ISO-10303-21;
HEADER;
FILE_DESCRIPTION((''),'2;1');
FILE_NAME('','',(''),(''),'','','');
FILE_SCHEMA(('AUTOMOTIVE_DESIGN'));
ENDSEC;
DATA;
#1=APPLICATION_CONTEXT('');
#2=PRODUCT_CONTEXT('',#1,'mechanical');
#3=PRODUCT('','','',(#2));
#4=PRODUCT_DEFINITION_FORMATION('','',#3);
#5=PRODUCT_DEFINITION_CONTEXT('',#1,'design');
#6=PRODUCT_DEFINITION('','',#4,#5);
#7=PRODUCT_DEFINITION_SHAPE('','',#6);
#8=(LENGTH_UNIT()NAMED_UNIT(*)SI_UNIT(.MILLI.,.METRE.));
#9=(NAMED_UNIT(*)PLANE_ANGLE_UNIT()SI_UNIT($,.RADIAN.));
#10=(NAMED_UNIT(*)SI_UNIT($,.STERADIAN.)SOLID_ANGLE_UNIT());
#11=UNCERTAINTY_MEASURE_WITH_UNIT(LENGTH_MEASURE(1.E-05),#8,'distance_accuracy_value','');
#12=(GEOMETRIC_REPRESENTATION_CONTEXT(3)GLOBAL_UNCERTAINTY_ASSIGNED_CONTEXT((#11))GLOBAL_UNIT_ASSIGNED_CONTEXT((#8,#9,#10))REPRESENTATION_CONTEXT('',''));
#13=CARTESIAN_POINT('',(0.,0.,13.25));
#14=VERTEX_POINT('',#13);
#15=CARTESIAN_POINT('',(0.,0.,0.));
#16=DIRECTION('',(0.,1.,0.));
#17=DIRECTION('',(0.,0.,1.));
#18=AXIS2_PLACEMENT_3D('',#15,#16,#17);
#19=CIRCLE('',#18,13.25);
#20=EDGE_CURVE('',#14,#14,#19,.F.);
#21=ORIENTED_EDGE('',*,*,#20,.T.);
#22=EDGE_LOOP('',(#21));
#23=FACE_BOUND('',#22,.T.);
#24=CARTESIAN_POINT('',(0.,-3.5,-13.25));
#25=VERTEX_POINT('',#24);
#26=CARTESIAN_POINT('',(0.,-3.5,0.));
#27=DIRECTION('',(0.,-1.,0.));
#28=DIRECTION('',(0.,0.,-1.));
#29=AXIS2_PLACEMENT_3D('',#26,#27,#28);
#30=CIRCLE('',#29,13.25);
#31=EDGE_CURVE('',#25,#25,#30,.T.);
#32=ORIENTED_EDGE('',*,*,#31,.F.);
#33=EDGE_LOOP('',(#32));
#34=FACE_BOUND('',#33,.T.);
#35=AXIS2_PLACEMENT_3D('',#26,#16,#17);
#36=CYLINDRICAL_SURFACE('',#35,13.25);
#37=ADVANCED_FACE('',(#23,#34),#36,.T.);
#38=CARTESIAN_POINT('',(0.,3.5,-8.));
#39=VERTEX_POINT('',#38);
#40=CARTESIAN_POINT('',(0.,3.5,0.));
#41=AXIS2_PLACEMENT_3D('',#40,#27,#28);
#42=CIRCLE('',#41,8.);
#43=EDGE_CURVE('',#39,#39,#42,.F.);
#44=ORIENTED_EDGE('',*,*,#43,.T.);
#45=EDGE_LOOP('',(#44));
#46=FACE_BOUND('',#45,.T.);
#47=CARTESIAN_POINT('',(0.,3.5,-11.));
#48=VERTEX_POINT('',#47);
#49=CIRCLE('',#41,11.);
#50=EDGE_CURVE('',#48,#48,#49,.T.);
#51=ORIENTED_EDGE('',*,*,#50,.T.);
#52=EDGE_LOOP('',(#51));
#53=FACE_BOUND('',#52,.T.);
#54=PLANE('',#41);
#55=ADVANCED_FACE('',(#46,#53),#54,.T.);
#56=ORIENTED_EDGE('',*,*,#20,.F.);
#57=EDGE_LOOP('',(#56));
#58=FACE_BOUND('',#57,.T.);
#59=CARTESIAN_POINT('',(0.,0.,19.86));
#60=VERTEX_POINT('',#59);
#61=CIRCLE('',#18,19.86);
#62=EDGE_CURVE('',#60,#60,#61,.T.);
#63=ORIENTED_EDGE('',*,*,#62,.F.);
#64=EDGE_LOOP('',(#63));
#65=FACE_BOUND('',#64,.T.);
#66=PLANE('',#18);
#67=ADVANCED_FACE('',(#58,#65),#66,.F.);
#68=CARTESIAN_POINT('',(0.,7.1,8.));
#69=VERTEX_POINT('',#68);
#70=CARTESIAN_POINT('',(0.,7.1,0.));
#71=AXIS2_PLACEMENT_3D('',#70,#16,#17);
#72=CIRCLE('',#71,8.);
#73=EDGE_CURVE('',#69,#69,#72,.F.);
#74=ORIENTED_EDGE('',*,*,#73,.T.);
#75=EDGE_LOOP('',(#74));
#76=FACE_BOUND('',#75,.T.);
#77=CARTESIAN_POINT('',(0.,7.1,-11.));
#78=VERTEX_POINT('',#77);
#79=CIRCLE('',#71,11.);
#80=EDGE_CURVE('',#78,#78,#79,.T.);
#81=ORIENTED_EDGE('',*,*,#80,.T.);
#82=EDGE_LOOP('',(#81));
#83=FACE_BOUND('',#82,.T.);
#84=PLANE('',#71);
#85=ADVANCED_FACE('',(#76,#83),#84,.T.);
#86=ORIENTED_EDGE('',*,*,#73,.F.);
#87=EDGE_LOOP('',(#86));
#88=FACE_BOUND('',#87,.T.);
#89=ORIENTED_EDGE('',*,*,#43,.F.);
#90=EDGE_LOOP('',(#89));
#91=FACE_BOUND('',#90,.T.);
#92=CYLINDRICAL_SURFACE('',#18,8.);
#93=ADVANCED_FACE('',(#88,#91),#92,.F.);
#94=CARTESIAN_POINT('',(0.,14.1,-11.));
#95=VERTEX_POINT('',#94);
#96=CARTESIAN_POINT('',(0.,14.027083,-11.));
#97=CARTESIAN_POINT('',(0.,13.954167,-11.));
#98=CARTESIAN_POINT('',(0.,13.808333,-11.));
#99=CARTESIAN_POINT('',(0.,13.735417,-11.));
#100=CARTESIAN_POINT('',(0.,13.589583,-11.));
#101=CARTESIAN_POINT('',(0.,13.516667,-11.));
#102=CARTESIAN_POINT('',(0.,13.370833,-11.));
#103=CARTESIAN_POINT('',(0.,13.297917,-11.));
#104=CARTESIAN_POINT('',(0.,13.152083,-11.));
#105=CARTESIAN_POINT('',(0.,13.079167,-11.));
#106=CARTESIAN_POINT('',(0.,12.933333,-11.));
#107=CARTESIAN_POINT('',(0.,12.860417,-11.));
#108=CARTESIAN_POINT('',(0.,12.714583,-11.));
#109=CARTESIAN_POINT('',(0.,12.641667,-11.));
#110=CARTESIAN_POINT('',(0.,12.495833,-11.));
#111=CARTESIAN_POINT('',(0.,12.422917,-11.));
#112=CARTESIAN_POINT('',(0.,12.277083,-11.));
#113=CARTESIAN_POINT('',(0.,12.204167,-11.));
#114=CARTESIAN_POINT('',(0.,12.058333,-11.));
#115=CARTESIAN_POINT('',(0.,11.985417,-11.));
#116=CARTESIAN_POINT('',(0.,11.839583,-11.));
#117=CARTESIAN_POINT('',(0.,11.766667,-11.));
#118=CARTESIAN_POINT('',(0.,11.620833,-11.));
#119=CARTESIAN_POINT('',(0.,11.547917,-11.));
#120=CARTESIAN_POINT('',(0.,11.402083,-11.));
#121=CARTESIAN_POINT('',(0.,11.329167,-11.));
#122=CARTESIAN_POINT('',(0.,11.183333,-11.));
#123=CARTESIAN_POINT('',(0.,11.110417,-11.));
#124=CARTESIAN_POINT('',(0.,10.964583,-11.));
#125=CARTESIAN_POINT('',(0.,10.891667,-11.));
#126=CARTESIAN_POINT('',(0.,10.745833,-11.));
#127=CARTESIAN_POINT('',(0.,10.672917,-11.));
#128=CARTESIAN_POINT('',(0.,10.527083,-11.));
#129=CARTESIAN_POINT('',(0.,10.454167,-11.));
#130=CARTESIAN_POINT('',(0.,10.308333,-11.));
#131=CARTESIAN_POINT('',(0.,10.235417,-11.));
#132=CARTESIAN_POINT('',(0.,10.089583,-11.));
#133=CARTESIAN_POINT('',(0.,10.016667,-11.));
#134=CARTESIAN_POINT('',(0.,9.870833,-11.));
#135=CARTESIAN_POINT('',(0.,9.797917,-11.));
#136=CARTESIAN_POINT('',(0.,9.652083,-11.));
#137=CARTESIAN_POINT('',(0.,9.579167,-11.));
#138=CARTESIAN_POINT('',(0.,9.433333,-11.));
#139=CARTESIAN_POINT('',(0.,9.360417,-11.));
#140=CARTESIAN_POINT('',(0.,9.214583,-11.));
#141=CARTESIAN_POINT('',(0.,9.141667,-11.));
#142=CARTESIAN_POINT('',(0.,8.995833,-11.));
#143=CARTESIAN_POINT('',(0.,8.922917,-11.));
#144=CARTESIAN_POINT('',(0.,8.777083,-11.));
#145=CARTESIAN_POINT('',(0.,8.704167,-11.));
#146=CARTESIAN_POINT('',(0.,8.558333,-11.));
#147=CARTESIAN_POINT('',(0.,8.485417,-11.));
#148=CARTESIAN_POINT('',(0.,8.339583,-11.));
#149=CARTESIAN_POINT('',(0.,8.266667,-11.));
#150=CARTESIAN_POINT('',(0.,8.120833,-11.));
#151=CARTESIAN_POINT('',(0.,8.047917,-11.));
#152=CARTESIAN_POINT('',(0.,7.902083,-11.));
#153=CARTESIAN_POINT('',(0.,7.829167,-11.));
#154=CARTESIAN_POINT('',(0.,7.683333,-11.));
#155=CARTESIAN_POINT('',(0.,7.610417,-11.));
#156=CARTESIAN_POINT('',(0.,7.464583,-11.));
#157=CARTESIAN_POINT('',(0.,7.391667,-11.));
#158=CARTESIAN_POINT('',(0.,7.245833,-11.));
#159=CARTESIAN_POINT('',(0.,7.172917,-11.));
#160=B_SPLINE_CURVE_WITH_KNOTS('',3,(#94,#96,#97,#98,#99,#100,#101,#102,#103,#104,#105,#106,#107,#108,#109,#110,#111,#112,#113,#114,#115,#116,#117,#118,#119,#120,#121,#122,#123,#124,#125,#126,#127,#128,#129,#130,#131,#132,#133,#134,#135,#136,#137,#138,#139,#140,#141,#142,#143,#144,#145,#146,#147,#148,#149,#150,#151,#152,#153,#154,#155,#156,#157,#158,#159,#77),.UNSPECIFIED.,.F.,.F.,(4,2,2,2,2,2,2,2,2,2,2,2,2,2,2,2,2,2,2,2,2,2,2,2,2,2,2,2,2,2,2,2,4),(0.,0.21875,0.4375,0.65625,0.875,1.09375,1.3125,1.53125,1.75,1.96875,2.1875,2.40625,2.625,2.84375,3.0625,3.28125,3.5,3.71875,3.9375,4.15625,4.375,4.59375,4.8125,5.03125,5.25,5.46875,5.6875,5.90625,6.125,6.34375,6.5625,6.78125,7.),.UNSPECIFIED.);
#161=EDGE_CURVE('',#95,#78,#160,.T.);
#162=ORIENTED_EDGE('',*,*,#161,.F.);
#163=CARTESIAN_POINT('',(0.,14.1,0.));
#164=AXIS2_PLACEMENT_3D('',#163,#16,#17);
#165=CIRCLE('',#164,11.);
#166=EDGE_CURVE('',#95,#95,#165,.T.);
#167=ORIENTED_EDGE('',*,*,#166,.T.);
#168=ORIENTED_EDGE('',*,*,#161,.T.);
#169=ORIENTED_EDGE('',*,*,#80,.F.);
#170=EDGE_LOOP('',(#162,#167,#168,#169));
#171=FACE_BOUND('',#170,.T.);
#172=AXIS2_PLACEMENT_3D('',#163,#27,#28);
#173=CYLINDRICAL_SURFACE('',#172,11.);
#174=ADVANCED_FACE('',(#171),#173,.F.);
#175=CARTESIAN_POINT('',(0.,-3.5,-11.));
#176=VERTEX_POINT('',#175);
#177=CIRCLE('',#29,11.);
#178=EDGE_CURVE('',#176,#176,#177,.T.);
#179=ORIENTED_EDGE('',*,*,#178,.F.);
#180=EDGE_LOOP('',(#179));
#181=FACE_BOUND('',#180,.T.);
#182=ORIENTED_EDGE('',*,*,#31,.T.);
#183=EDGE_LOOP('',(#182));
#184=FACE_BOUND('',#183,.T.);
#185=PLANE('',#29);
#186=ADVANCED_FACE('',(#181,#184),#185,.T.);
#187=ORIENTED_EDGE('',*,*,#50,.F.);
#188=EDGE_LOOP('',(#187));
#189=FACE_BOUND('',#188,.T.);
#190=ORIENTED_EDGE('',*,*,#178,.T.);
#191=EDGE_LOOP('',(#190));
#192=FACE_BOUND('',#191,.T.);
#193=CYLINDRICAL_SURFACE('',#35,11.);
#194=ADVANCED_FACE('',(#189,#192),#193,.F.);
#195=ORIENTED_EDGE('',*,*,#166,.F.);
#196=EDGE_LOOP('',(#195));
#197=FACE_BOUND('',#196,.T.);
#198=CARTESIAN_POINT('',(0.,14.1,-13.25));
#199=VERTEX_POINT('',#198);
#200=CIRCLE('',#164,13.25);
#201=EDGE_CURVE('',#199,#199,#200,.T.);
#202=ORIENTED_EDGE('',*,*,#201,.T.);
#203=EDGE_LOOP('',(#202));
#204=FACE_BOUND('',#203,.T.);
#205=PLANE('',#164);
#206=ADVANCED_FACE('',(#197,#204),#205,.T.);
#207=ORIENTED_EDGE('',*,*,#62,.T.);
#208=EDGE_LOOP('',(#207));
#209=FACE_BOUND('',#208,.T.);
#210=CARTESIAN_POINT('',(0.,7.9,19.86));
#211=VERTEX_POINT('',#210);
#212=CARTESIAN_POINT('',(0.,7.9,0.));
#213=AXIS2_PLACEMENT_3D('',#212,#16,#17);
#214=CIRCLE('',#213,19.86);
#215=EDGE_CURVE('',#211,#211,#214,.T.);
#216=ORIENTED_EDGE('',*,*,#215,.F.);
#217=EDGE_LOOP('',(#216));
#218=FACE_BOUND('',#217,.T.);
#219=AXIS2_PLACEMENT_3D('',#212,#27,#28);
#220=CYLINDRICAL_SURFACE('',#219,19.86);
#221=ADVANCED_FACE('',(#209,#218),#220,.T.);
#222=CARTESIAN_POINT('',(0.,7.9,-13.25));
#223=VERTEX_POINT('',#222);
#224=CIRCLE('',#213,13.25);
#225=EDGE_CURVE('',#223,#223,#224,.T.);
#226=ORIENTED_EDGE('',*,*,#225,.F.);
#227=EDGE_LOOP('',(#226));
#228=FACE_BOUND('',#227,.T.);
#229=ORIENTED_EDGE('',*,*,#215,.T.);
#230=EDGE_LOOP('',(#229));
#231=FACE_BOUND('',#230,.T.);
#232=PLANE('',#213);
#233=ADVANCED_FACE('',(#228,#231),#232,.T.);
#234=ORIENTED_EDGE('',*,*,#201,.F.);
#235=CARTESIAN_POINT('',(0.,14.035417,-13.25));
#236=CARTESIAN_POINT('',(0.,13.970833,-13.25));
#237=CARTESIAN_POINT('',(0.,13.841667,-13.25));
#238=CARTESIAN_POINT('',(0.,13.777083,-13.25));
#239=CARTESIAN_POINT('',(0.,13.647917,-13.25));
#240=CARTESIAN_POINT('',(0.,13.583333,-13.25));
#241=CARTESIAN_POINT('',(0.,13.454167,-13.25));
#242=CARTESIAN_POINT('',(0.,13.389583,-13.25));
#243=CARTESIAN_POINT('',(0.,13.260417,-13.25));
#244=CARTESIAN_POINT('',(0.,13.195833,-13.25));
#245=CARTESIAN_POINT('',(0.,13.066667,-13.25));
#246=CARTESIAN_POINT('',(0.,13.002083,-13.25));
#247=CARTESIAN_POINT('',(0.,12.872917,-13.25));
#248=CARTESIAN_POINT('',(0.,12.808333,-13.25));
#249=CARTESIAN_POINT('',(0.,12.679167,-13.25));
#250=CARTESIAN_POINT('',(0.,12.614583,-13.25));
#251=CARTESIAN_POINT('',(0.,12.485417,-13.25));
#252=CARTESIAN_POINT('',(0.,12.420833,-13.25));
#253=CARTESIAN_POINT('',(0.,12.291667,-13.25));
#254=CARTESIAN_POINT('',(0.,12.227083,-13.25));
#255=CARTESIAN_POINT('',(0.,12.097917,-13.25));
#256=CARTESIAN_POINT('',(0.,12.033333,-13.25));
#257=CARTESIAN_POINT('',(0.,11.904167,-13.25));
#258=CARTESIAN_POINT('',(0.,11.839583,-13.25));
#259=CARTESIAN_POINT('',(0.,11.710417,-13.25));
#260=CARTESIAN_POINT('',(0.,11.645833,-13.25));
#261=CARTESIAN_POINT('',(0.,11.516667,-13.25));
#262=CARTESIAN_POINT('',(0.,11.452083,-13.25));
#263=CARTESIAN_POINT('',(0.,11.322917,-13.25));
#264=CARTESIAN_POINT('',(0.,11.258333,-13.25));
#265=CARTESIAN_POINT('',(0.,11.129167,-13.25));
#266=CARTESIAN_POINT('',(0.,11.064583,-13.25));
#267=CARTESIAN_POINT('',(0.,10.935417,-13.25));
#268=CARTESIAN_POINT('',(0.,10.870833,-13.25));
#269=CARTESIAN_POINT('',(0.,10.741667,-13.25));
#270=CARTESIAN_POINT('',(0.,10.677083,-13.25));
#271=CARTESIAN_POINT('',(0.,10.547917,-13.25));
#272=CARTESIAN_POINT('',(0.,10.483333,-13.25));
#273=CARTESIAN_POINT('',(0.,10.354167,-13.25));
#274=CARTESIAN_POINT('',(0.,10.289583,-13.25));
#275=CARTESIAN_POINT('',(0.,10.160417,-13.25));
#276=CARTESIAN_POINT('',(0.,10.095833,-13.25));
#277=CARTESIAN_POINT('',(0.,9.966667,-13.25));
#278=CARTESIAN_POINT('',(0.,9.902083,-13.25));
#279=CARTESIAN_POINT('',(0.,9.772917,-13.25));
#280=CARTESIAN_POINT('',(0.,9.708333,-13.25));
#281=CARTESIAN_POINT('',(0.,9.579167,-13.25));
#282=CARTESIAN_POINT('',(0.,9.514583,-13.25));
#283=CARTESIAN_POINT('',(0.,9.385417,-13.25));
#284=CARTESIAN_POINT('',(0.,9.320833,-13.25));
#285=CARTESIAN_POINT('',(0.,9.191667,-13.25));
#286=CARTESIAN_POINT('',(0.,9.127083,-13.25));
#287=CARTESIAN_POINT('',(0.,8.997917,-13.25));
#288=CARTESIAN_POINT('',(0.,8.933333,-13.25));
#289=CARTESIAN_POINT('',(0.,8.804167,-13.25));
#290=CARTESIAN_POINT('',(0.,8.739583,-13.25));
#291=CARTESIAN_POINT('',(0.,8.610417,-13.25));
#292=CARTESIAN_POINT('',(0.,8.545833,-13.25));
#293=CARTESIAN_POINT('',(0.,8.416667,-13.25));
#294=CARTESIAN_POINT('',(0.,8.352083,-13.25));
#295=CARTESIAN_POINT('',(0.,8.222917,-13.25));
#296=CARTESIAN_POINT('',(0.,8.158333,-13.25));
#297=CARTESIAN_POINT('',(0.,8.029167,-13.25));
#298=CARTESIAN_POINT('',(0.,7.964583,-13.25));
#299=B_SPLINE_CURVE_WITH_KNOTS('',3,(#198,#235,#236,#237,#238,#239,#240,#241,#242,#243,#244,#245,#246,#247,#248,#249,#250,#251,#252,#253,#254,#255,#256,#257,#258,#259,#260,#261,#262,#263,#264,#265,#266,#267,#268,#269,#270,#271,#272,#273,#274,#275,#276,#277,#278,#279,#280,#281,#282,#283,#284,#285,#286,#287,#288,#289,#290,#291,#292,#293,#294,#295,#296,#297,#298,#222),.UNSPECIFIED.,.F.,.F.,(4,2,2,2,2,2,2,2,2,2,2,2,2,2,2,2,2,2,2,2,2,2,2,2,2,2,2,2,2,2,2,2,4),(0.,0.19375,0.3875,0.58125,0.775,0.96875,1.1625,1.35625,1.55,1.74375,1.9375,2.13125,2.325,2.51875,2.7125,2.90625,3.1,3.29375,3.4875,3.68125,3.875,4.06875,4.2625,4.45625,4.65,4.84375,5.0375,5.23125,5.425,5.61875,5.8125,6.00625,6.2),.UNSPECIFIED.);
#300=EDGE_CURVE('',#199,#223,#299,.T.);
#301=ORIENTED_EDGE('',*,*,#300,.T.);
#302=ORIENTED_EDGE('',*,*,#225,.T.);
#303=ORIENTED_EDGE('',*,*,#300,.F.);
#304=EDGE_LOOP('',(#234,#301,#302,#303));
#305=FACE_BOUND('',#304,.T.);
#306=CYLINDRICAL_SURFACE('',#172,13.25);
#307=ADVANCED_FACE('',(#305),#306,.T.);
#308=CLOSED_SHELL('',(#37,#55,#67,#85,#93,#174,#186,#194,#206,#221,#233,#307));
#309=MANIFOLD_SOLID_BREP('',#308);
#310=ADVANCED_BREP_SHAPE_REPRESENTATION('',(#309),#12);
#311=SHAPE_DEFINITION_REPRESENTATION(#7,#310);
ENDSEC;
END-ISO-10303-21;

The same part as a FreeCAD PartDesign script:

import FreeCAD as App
import Part
import Sketcher
Q = App.Units.Quantity

doc = App.newDocument("Part")
body = doc.addObject("PartDesign::Body", "Body")

# Sketch on XZ plane
sketch1 = body.newObject("Sketcher::SketchObject", "Sketch")
sketch1.AttachmentSupport = (doc.getObject("XZ_Plane"), [""])
sketch1.MapMode = "FlatFace"
sketch1.addGeometry(Part.Circle(App.Vector(0, 0, 0), App.Vector(0, 0, 1), 20), False)
sketch1.addConstraint([
    Sketcher.Constraint("Coincident", 0, 3, -1, 1),
    Sketcher.Constraint("Diameter", 0, Q("39.72 mm")),
])
pad1 = body.newObject("PartDesign::Pad", "Pad")
pad1.Profile = sketch1
pad1.Length = 7.9
pad1.Reversed = True

# Sketch on XZ plane
sketch2 = body.newObject("Sketcher::SketchObject", "Sketch001")
sketch2.AttachmentSupport = (doc.getObject("XZ_Plane"), [""])
sketch2.MapMode = "FlatFace"
sketch2.AttachmentOffset = App.Placement(App.Vector(0, 0, -7.9), App.Rotation())
sketch2.addGeometry(Part.Circle(App.Vector(0, 0, 0), App.Vector(0, 0, 1), 8), False)
sketch2.addConstraint([
    Sketcher.Constraint("Coincident", 0, 3, -1, 1),
    Sketcher.Constraint("Diameter", 0, Q("16 mm")),
])
pocket1 = body.newObject("PartDesign::Pocket", "Pocket")
pocket1.Profile = sketch2
pocket1.Length = 7.9
pocket1.Reversed = True

# Sketch on XZ plane
sketch3 = body.newObject("Sketcher::SketchObject", "Sketch002")
sketch3.AttachmentSupport = (doc.getObject("XZ_Plane"), [""])
sketch3.MapMode = "FlatFace"
sketch3.AttachmentOffset = App.Placement(App.Vector(0, 0, -7.9), App.Rotation())
sketch3.addGeometry([
    Part.Circle(App.Vector(0, 0, 0), App.Vector(0, 0, 1), 13),
    Part.Circle(App.Vector(0, 0, 0), App.Vector(0, 0, 1), 11),
], False)
sketch3.addConstraint([
    Sketcher.Constraint("Coincident", 0, 3, -1, 1),
    Sketcher.Constraint("Coincident", 1, 3, -1, 1),
    Sketcher.Constraint("Diameter", 1, Q("22 mm")),
    Sketcher.Constraint("Diameter", 0, Q("26.5 mm")),
])
pad2 = body.newObject("PartDesign::Pad", "Pad001")
pad2.Profile = sketch3
pad2.Length = 6.2
pad2.Reversed = True

# Sketch on XZ plane
sketch4 = body.newObject("Sketcher::SketchObject", "Sketch003")
sketch4.AttachmentSupport = (doc.getObject("XZ_Plane"), [""])
sketch4.MapMode = "FlatFace"
sketch4.AttachmentOffset = App.Placement(App.Vector(0, 0, 3.5), App.Rotation())
sketch4.addGeometry([
    Part.Circle(App.Vector(0, 0, 0), App.Vector(0, 0, 1), 13),
    Part.Circle(App.Vector(0, 0, 0), App.Vector(0, 0, 1), 11),
], False)
sketch4.addConstraint([
    Sketcher.Constraint("Coincident", 0, 3, -1, 1),
    Sketcher.Constraint("Coincident", 1, 3, -1, 1),
    Sketcher.Constraint("Diameter", 1, Q("22 mm")),
    Sketcher.Constraint("Diameter", 0, Q("26.5 mm")),
])
pad3 = body.newObject("PartDesign::Pad", "Pad002")
pad3.Profile = sketch4
pad3.Length = 3.5
pad3.Reversed = True

# Sketch on XZ plane
sketch5 = body.newObject("Sketcher::SketchObject", "Sketch004")
sketch5.AttachmentSupport = (doc.getObject("XZ_Plane"), [""])
sketch5.MapMode = "FlatFace"
sketch5.AttachmentOffset = App.Placement(App.Vector(0, 0, 3.5), App.Rotation())
sketch5.addGeometry(Part.Circle(App.Vector(0, 0, 0), App.Vector(0, 0, 1), 11), False)
sketch5.addConstraint([
    Sketcher.Constraint("Coincident", 0, 3, -1, 1),
    Sketcher.Constraint("Diameter", 0, Q("22 mm")),
])
pocket2 = body.newObject("PartDesign::Pocket", "Pocket001")
pocket2.Profile = sketch5
pocket2.Length = 7

# Sketch on XZ plane
sketch6 = body.newObject("Sketcher::SketchObject", "Sketch005")
sketch6.AttachmentSupport = (doc.getObject("XZ_Plane"), [""])
sketch6.MapMode = "FlatFace"
sketch6.AttachmentOffset = App.Placement(App.Vector(0, 0, -7.1), App.Rotation())
sketch6.addGeometry(Part.Circle(App.Vector(0, 0, 0), App.Vector(0, 0, 1), 11), False)
sketch6.addConstraint([
    Sketcher.Constraint("Coincident", 0, 3, -1, 1),
    Sketcher.Constraint("Diameter", 0, Q("22 mm")),
])
pocket3 = body.newObject("PartDesign::Pocket", "Pocket002")
pocket3.Profile = sketch6
pocket3.Length = 7

doc.recompute()
